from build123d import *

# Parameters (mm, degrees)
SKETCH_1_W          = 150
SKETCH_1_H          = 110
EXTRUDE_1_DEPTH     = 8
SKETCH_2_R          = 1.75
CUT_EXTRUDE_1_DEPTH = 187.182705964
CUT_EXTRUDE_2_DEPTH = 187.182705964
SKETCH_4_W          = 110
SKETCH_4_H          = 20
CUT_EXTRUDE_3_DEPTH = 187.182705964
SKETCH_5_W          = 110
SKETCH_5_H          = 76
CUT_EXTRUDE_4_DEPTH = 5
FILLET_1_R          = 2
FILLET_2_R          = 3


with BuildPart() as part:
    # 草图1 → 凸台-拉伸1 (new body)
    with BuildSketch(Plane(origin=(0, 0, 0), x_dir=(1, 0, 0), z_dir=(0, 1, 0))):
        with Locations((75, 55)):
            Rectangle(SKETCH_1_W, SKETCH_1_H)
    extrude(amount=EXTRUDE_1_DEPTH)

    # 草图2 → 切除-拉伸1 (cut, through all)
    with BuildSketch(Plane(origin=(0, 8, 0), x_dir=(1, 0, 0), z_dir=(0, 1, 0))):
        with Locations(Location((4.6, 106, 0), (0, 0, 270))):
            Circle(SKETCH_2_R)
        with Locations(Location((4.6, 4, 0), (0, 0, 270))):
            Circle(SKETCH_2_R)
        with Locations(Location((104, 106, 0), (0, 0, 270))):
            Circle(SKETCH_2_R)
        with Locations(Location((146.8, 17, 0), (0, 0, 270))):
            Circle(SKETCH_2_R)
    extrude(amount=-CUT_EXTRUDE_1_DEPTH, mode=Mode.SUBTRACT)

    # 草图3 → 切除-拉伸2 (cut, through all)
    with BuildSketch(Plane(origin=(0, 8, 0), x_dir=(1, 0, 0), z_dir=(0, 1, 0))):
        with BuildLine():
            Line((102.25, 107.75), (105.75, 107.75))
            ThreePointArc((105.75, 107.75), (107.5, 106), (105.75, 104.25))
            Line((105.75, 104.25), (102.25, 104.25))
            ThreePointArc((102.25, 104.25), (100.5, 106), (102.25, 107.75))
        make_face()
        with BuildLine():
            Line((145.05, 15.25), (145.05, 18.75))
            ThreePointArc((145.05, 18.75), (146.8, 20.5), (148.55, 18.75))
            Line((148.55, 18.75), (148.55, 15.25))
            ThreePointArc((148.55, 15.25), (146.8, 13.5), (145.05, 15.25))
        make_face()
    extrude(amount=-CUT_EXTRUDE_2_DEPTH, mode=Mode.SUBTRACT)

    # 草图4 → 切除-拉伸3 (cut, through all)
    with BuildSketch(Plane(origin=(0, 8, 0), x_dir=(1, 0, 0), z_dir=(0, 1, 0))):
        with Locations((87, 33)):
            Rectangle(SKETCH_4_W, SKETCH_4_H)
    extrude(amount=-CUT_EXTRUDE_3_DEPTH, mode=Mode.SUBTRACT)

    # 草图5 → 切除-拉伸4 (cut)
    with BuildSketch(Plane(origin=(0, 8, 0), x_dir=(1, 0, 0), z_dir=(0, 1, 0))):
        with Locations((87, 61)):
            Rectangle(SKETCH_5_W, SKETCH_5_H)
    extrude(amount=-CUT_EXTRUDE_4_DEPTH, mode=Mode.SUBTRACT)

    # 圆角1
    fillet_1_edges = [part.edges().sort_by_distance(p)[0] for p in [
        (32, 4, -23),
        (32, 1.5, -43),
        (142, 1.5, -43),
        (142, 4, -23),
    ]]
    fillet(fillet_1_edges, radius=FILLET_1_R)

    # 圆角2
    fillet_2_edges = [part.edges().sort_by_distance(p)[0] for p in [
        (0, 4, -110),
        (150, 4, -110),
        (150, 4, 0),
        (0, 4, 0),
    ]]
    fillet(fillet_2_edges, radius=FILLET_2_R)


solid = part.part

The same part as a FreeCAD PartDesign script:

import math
import FreeCAD as App
import Part
import Sketcher
Q = App.Units.Quantity


def edges_at(feature, points):
    """Names of the edges that pass closest to the given points."""
    edges = feature.Shape.Edges
    near = lambda p: min(range(len(edges)), key=lambda i: edges[i].distToShape(Part.Vertex(*p))[0])
    return sorted({f"Edge{near(p) + 1}" for p in points})

doc = App.newDocument("Part")
params = doc.addObject("Spreadsheet::Sheet", "Params")
for row, (alias, value) in enumerate([
    ("sketch1_width", "150 mm"),
    ("sketch1_height", "110 mm"),
    ("pad1_length", "8 mm"),
    ("sketch2_diameter", "3.5 mm"),
    ("sketch3_radius", "1.75 mm"),
    ("sketch3_width", "3.5 mm"),
    ("sketch4_width", "110 mm"),
    ("sketch4_height", "20 mm"),
    ("sketch5_width", "110 mm"),
    ("sketch5_height", "76 mm"),
    ("pocket4_length", "5 mm"),
    ("fillet_radius", "2 mm"),
    ("fillet2_radius", "3 mm"),
], start=1):
    params.set(f"A{row}", alias)
    params.set(f"B{row}", "=" + value)
    params.setAlias(f"B{row}", alias)

body = doc.addObject("PartDesign::Body", "Body")

# Sketch on XZ plane
sketch1 = body.newObject("Sketcher::SketchObject", "Sketch")
sketch1.AttachmentSupport = (doc.getObject("XZ_Plane"), [""])
sketch1.MapMode = "FlatFace"
sketch1.addGeometry(Part.LineSegment(App.Vector(0, -110, 0), App.Vector(0, 0, 0)), False)
sketch1.addGeometry(Part.LineSegment(App.Vector(0, 0, 0), App.Vector(150, 0, 0)), False)
sketch1.addGeometry(Part.LineSegment(App.Vector(150, 0, 0), App.Vector(150, -110, 0)), False)
sketch1.addGeometry(Part.LineSegment(App.Vector(150, -110, 0), App.Vector(0, -110, 0)), False)
sketch1.addConstraint(Sketcher.Constraint("Coincident", 0, 2, 1, 1))
sketch1.addConstraint(Sketcher.Constraint("Coincident", 1, 2, 2, 1))
sketch1.addConstraint(Sketcher.Constraint("Coincident", 2, 2, 3, 1))
sketch1.addConstraint(Sketcher.Constraint("Coincident", 3, 2, 0, 1))
sketch1.addConstraint(Sketcher.Constraint("Vertical", 0))
sketch1.addConstraint(Sketcher.Constraint("Horizontal", 1))
sketch1.addConstraint(Sketcher.Constraint("Vertical", 2))
sketch1.addConstraint(Sketcher.Constraint("Horizontal", 3))
sketch1.addConstraint(Sketcher.Constraint("Coincident", 0, 2, -1, 1))
sketch1.addConstraint(Sketcher.Constraint("DistanceX", 1, 1, 1, 2, Q("150 mm")))
sketch1.addConstraint(Sketcher.Constraint("DistanceY", 0, 1, 0, 2, Q("110 mm")))
sketch1.setExpression("Constraints[9]", "Params.sketch1_width")
sketch1.setExpression("Constraints[10]", "Params.sketch1_height")
pad1 = body.newObject("PartDesign::Pad", "Pad")
pad1.Profile = sketch1
pad1.setExpression("Length", "Params.pad1_length")
pad1.Reversed = True

# Sketch on XZ plane
sketch2 = body.newObject("Sketcher::SketchObject", "Sketch001")
sketch2.AttachmentSupport = (doc.getObject("XZ_Plane"), [""])
sketch2.MapMode = "FlatFace"
sketch2.AttachmentOffset = App.Placement(App.Vector(0, 0, -8), App.Rotation())
sketch2.addGeometry(Part.Circle(App.Vector(4.6, -106, 0), App.Vector(0, 0, 1), 1.8), False)
sketch2.addGeometry(Part.Circle(App.Vector(4.6, -4, 0), App.Vector(0, 0, 1), 1.8), False)
sketch2.addGeometry(Part.Circle(App.Vector(104, -106, 0), App.Vector(0, 0, 1), 1.8), False)
sketch2.addGeometry(Part.Circle(App.Vector(146.8, -17, 0), App.Vector(0, 0, 1), 1.8), False)
sketch2.addConstraint(Sketcher.Constraint("Equal", 0, 1))
sketch2.addConstraint(Sketcher.Constraint("Equal", 1, 2))
sketch2.addConstraint(Sketcher.Constraint("Equal", 2, 3))
sketch2.addConstraint(Sketcher.Constraint("Horizontal", 0, 3, 2, 3))
sketch2.addConstraint(Sketcher.Constraint("Vertical", 0, 3, 1, 3))
sketch2.addConstraint(Sketcher.Constraint("Diameter", 0, Q("3.5 mm")))
sketch2.addConstraint(Sketcher.Constraint("DistanceY", 0, 3, -1, 1, Q("106 mm")))
sketch2.addConstraint(Sketcher.Constraint("DistanceY", 1, 3, -1, 1, Q("4 mm")))
sketch2.addConstraint(Sketcher.Constraint("DistanceX", -1, 1, 2, 3, Q("104 mm")))
sketch2.addConstraint(Sketcher.Constraint("DistanceY", 3, 3, -1, 1, Q("17 mm")))
sketch2.addConstraint(Sketcher.Constraint("DistanceX", -1, 1, 0, 3, Q("4.6 mm")))
sketch2.addConstraint(Sketcher.Constraint("DistanceX", -1, 1, 3, 3, Q("146.8 mm")))
sketch2.setExpression("Constraints[5]", "Params.sketch2_diameter")
pocket1 = body.newObject("PartDesign::Pocket", "Pocket")
pocket1.Profile = sketch2
pocket1.Type = "ThroughAll"
pocket1.Reversed = True

# Sketch on XZ plane
sketch3 = body.newObject("Sketcher::SketchObject", "Sketch002")
sketch3.AttachmentSupport = (doc.getObject("XZ_Plane"), [""])
sketch3.MapMode = "FlatFace"
sketch3.AttachmentOffset = App.Placement(App.Vector(0, 0, -8), App.Rotation())
sketch3.addGeometry(Part.LineSegment(App.Vector(105.8, -107.8, 0), App.Vector(102.2, -107.8, 0)), False)
sketch3.addGeometry(Part.ArcOfCircle(Part.Circle(App.Vector(102.2, -106, 0), App.Vector(0, 0, 1), 1.8), math.radians(90), math.radians(270)), False)
sketch3.addGeometry(Part.LineSegment(App.Vector(102.2, -104.2, 0), App.Vector(105.8, -104.2, 0)), False)
sketch3.addGeometry(Part.ArcOfCircle(Part.Circle(App.Vector(105.8, -106, 0), App.Vector(0, 0, 1), 1.8), math.radians(-90), math.radians(90)), False)
sketch3.addGeometry(Part.LineSegment(App.Vector(145.1, -18.8, 0), App.Vector(145.1, -15.2, 0)), False)
sketch3.addGeometry(Part.ArcOfCircle(Part.Circle(App.Vector(146.8, -15.2, 0), App.Vector(0, 0, 1), 1.8), math.radians(0), math.radians(180)), False)
sketch3.addGeometry(Part.LineSegment(App.Vector(148.6, -15.2, 0), App.Vector(148.6, -18.8, 0)), False)
sketch3.addGeometry(Part.ArcOfCircle(Part.Circle(App.Vector(146.8, -18.8, 0), App.Vector(0, 0, 1), 1.8), math.radians(180), math.radians(360)), False)
sketch3.addConstraint(Sketcher.Constraint("Tangent", 0, 2, 1, 2))
sketch3.addConstraint(Sketcher.Constraint("Tangent", 1, 1, 2, 1))
sketch3.addConstraint(Sketcher.Constraint("Tangent", 2, 2, 3, 2))
sketch3.addConstraint(Sketcher.Constraint("Tangent", 3, 1, 0, 1))
sketch3.addConstraint(Sketcher.Constraint("Tangent", 4, 2, 5, 2))
sketch3.addConstraint(Sketcher.Constraint("Tangent", 5, 1, 6, 1))
sketch3.addConstraint(Sketcher.Constraint("Tangent", 6, 2, 7, 2))
sketch3.addConstraint(Sketcher.Constraint("Tangent", 7, 1, 4, 1))
sketch3.addConstraint(Sketcher.Constraint("Horizontal", 0))
sketch3.addConstraint(Sketcher.Constraint("Horizontal", 2))
sketch3.addConstraint(Sketcher.Constraint("Vertical", 4))
sketch3.addConstraint(Sketcher.Constraint("Vertical", 6))
sketch3.addConstraint(Sketcher.Constraint("Equal", 3, 5))
sketch3.addConstraint(Sketcher.Constraint("Equal", 2, 4))
sketch3.addConstraint(Sketcher.Constraint("Radius", 1, Q("1.75 mm")))
sketch3.addConstraint(Sketcher.Constraint("DistanceX", 0, 2, 0, 1, Q("3.5 mm")))
sketch3.addConstraint(Sketcher.Constraint("DistanceY", 1, 3, -1, 1, Q("106 mm")))
sketch3.addConstraint(Sketcher.Constraint("DistanceY", 0, 2, 7, 3, Q("89 mm")))
sketch3.addConstraint(Sketcher.Constraint("DistanceX", -1, 1, 5, 3, Q("146.8 mm")))
sketch3.addConstraint(Sketcher.Constraint("DistanceX", 2, 2, 4, 2, Q("39.3 mm")))
sketch3.setExpression("Constraints[14]", "Params.sketch3_radius")
sketch3.setExpression("Constraints[15]", "Params.sketch3_width")
pocket2 = body.newObject("PartDesign::Pocket", "Pocket001")
pocket2.Profile = sketch3
pocket2.Type = "ThroughAll"
pocket2.Reversed = True

# Sketch on XZ plane
sketch4 = body.newObject("Sketcher::SketchObject", "Sketch003")
sketch4.AttachmentSupport = (doc.getObject("XZ_Plane"), [""])
sketch4.MapMode = "FlatFace"
sketch4.AttachmentOffset = App.Placement(App.Vector(0, 0, -8), App.Rotation())
sketch4.addGeometry(Part.LineSegment(App.Vector(32, -43, 0), App.Vector(32, -23, 0)), False)
sketch4.addGeometry(Part.LineSegment(App.Vector(32, -23, 0), App.Vector(142, -23, 0)), False)
sketch4.addGeometry(Part.LineSegment(App.Vector(142, -23, 0), App.Vector(142, -43, 0)), False)
sketch4.addGeometry(Part.LineSegment(App.Vector(142, -43, 0), App.Vector(32, -43, 0)), False)
sketch4.addConstraint(Sketcher.Constraint("Coincident", 0, 2, 1, 1))
sketch4.addConstraint(Sketcher.Constraint("Coincident", 1, 2, 2, 1))
sketch4.addConstraint(Sketcher.Constraint("Coincident", 2, 2, 3, 1))
sketch4.addConstraint(Sketcher.Constraint("Coincident", 3, 2, 0, 1))
sketch4.addConstraint(Sketcher.Constraint("Vertical", 0))
sketch4.addConstraint(Sketcher.Constraint("Horizontal", 1))
sketch4.addConstraint(Sketcher.Constraint("Vertical", 2))
sketch4.addConstraint(Sketcher.Constraint("Horizontal", 3))
sketch4.addConstraint(Sketcher.Constraint("DistanceX", 1, 1, 1, 2, Q("110 mm")))
sketch4.addConstraint(Sketcher.Constraint("DistanceY", 0, 1, 0, 2, Q("20 mm")))
sketch4.addConstraint(Sketcher.Constraint("DistanceX", -1, 1, 0, 2, Q("32 mm")))
sketch4.addConstraint(Sketcher.Constraint("DistanceY", 0, 2, -1, 1, Q("23 mm")))
sketch4.setExpression("Constraints[8]", "Params.sketch4_width")
sketch4.setExpression("Constraints[9]", "Params.sketch4_height")
pocket3 = body.newObject("PartDesign::Pocket", "Pocket002")
pocket3.Profile = sketch4
pocket3.Type = "ThroughAll"
pocket3.Reversed = True

# Sketch on XZ plane
sketch5 = body.newObject("Sketcher::SketchObject", "Sketch004")
sketch5.AttachmentSupport = (doc.getObject("XZ_Plane"), [""])
sketch5.MapMode = "FlatFace"
sketch5.AttachmentOffset = App.Placement(App.Vector(0, 0, -8), App.Rotation())
sketch5.addGeometry(Part.LineSegment(App.Vector(32, -99, 0), App.Vector(32, -23, 0)), False)
sketch5.addGeometry(Part.LineSegment(App.Vector(32, -23, 0), App.Vector(142, -23, 0)), False)
sketch5.addGeometry(Part.LineSegment(App.Vector(142, -23, 0), App.Vector(142, -99, 0)), False)
sketch5.addGeometry(Part.LineSegment(App.Vector(142, -99, 0), App.Vector(32, -99, 0)), False)
sketch5.addConstraint(Sketcher.Constraint("Coincident", 0, 2, 1, 1))
sketch5.addConstraint(Sketcher.Constraint("Coincident", 1, 2, 2, 1))
sketch5.addConstraint(Sketcher.Constraint("Coincident", 2, 2, 3, 1))
sketch5.addConstraint(Sketcher.Constraint("Coincident", 3, 2, 0, 1))
sketch5.addConstraint(Sketcher.Constraint("Vertical", 0))
sketch5.addConstraint(Sketcher.Constraint("Horizontal", 1))
sketch5.addConstraint(Sketcher.Constraint("Vertical", 2))
sketch5.addConstraint(Sketcher.Constraint("Horizontal", 3))
sketch5.addConstraint(Sketcher.Constraint("DistanceX", 1, 1, 1, 2, Q("110 mm")))
sketch5.addConstraint(Sketcher.Constraint("DistanceY", 0, 1, 0, 2, Q("76 mm")))
sketch5.addConstraint(Sketcher.Constraint("DistanceX", -1, 1, 0, 2, Q("32 mm")))
sketch5.addConstraint(Sketcher.Constraint("DistanceY", 0, 2, -1, 1, Q("23 mm")))
sketch5.setExpression("Constraints[8]", "Params.sketch5_width")
sketch5.setExpression("Constraints[9]", "Params.sketch5_height")
pocket4 = body.newObject("PartDesign::Pocket", "Pocket003")
pocket4.Profile = sketch5
pocket4.setExpression("Length", "Params.pocket4_length")
pocket4.Reversed = True
doc.recompute()

fillet = body.newObject("PartDesign::Fillet", "Fillet")
fillet.Base = (pocket4, edges_at(pocket4, [
    (32, 4, -23),
    (32, 1.5, -43),
    (142, 1.5, -43),
    (142, 4, -23),
]))
fillet.setExpression("Radius", "Params.fillet_radius")
doc.recompute()

fillet2 = body.newObject("PartDesign::Fillet", "Fillet001")
fillet2.Base = (fillet, edges_at(fillet, [
    (0, 4, -110),
    (150, 4, -110),
    (150, 4, 0),
    (0, 4, 0),
]))
fillet2.setExpression("Radius", "Params.fillet2_radius")

doc.recompute()
